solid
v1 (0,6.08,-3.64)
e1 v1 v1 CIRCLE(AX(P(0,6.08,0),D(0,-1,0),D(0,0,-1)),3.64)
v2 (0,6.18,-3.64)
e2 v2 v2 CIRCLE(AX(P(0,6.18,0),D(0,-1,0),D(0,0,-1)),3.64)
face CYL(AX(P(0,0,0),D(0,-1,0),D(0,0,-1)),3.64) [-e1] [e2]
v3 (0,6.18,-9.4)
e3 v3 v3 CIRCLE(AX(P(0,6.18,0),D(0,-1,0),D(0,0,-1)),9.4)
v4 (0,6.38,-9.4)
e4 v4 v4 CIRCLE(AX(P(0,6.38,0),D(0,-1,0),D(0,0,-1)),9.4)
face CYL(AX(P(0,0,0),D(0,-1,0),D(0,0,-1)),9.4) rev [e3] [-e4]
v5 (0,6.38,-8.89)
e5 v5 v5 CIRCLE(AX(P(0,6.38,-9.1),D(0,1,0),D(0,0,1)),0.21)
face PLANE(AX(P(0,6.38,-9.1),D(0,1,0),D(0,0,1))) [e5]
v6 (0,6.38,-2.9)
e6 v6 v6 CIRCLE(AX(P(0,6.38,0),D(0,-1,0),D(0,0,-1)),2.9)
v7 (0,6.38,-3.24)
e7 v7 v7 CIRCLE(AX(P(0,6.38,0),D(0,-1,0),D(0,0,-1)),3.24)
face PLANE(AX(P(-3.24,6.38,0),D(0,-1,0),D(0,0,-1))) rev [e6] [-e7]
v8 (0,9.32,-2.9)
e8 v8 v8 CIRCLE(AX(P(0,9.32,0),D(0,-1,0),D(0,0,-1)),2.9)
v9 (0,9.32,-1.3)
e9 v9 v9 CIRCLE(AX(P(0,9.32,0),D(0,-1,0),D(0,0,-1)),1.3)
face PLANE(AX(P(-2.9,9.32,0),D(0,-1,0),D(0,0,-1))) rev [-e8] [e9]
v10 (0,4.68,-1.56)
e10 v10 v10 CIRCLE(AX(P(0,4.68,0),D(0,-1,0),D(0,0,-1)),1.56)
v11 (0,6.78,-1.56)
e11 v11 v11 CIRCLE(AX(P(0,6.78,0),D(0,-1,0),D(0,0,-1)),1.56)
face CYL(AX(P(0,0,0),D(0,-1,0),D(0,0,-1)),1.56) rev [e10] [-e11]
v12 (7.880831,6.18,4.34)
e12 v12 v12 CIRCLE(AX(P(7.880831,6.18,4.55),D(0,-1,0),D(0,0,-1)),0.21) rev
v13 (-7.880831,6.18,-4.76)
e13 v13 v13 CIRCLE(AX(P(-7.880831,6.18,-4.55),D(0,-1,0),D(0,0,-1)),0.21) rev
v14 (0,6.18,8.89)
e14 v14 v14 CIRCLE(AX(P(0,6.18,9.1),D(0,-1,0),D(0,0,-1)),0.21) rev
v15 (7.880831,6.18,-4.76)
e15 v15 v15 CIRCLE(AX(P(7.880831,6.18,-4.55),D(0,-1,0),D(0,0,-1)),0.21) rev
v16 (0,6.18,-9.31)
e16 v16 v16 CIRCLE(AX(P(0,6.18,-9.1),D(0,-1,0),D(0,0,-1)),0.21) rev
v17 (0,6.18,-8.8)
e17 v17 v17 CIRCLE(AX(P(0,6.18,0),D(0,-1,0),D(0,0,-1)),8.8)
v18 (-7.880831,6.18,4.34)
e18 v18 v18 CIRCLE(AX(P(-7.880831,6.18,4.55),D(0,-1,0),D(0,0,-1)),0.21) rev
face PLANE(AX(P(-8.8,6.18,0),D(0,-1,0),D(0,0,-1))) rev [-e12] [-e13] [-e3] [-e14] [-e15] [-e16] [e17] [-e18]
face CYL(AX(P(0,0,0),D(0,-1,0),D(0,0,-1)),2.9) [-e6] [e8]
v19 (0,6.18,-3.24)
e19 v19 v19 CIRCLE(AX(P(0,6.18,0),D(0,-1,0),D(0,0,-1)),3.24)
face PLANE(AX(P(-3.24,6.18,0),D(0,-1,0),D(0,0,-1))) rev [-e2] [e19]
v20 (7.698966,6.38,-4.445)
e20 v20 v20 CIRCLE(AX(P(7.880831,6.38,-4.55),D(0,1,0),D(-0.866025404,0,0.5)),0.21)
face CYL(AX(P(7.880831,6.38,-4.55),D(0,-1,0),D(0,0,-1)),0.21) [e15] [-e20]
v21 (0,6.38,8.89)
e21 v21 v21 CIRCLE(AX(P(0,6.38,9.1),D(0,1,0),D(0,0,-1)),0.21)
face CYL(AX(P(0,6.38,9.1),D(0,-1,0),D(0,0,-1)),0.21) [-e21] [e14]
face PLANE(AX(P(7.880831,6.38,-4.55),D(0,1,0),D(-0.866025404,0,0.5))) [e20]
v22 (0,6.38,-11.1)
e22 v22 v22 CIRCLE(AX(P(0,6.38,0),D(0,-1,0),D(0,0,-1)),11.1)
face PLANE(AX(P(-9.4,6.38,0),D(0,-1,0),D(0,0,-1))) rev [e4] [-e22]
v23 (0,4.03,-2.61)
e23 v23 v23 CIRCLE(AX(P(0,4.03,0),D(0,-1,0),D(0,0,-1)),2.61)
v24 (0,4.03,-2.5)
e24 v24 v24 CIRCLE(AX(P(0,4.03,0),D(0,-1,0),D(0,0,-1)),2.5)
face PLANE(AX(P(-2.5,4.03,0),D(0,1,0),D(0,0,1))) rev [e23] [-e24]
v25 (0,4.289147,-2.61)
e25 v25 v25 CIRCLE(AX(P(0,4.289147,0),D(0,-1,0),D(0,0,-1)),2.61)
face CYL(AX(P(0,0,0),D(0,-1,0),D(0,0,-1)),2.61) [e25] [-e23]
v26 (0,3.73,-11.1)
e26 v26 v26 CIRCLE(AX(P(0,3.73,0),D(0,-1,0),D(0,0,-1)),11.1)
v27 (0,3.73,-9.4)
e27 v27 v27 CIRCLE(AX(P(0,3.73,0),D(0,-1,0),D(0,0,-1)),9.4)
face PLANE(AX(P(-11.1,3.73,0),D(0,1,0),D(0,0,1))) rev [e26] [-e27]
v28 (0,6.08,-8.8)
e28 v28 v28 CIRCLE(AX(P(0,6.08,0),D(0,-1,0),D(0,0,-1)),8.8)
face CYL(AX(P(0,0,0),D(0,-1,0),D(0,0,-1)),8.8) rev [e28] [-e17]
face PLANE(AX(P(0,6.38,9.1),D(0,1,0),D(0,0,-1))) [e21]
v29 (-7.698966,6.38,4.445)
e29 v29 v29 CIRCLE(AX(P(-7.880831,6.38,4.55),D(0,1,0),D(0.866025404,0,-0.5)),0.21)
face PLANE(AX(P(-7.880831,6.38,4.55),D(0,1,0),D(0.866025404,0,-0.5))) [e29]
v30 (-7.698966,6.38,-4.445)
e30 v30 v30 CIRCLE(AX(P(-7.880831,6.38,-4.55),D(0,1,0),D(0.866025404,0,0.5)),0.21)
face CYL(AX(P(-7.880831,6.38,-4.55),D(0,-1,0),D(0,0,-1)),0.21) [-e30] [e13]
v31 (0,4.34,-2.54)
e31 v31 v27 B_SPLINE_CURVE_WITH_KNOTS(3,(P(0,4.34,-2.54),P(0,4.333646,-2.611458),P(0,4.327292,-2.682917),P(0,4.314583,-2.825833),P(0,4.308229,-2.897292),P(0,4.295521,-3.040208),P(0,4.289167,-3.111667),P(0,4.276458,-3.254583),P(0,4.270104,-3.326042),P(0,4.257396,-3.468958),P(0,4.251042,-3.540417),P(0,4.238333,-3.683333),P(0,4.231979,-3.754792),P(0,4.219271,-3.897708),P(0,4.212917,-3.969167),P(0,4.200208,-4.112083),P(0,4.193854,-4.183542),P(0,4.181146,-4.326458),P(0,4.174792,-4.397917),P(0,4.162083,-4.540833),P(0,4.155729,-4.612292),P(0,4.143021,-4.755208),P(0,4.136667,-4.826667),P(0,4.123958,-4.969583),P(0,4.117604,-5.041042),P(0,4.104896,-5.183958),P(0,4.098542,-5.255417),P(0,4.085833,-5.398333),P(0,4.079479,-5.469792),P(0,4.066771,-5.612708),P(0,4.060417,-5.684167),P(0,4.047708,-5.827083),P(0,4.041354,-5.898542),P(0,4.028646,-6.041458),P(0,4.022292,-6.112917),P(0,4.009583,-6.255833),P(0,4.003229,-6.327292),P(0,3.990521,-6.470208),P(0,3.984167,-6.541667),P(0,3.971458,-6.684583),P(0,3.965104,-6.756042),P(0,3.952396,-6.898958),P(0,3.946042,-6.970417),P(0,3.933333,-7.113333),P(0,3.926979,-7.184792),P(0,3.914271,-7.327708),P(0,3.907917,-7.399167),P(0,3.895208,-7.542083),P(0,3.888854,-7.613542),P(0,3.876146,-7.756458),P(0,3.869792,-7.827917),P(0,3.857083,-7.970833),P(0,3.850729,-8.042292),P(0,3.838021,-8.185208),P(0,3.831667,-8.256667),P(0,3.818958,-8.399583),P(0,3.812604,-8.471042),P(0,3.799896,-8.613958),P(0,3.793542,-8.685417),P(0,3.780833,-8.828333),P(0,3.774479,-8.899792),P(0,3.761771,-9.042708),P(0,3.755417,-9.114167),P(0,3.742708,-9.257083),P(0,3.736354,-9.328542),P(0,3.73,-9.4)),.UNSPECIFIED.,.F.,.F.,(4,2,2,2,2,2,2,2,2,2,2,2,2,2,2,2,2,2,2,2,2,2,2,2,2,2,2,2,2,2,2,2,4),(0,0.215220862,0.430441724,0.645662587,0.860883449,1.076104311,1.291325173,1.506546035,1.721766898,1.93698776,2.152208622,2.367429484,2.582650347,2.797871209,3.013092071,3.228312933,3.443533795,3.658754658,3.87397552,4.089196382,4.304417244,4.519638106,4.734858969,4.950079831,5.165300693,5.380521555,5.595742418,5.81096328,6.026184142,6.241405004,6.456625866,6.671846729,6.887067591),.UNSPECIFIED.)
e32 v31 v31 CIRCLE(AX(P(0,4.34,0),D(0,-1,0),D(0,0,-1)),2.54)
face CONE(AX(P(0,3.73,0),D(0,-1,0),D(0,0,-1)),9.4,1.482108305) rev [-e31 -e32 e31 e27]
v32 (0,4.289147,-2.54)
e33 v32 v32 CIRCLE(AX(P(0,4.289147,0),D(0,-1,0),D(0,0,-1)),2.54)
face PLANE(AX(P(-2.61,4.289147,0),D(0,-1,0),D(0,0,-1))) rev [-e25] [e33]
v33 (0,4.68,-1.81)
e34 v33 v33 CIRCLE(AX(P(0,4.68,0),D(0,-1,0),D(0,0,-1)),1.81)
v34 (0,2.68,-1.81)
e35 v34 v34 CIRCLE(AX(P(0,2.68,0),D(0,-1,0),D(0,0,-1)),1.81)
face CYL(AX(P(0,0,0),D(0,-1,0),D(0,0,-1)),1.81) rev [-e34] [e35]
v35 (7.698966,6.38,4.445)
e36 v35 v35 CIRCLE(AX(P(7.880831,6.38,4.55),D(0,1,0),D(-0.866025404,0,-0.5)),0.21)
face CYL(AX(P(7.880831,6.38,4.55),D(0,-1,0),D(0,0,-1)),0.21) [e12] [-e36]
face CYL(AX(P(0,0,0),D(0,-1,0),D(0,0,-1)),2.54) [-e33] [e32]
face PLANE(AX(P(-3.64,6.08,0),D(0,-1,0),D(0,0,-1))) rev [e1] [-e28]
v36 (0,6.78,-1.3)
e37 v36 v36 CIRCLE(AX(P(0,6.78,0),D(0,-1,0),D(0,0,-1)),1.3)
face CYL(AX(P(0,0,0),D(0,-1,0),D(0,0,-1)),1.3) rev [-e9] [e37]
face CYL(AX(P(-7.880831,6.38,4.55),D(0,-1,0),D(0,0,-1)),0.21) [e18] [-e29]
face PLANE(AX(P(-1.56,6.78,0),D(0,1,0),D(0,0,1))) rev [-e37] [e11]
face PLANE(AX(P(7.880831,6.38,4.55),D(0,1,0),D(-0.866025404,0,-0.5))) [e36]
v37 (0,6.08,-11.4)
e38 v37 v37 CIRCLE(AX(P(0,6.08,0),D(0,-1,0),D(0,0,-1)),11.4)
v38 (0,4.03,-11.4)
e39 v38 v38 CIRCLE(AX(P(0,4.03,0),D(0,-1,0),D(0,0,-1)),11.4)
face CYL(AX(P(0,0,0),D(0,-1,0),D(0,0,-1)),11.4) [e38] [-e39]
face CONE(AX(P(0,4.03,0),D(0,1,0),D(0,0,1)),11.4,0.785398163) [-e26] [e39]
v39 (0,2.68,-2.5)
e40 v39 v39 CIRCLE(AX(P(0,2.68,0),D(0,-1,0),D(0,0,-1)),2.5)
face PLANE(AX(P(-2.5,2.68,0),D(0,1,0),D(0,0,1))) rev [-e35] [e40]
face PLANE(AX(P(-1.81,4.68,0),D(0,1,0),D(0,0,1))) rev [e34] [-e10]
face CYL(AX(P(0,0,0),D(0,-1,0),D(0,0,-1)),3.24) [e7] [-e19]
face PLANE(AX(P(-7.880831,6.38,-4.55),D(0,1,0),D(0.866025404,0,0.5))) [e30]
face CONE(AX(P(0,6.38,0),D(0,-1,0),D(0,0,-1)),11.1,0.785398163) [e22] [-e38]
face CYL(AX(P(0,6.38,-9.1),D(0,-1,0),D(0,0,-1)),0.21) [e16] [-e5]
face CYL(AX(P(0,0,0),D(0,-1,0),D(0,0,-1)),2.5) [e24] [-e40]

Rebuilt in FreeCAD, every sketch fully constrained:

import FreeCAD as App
import Part
import Sketcher
Q = App.Units.Quantity

doc = App.newDocument("Part")
body = doc.addObject("PartDesign::Body", "Body")

# Sketch on XY plane
sketch1 = body.newObject("Sketcher::SketchObject", "Sketch")
sketch1.AttachmentSupport = (doc.getObject("XY_Plane"), [""])
sketch1.MapMode = "FlatFace"
sketch1.addGeometry([
    Part.LineSegment(App.Vector(-1.81, 2.68, 0), App.Vector(-1.81, 4.68, 0)),  # 0
    Part.LineSegment(App.Vector(-1.81, 4.68, 0), App.Vector(-1.56, 4.68, 0)),  # 1
    Part.LineSegment(App.Vector(-1.56, 4.68, 0), App.Vector(-1.56, 6.78, 0)),  # 2
    Part.LineSegment(App.Vector(-1.56, 6.78, 0), App.Vector(-1.3, 6.78, 0)),  # 3
    Part.LineSegment(App.Vector(-1.3, 6.78, 0), App.Vector(-1.3, 9.32, 0)),  # 4
    Part.LineSegment(App.Vector(-1.3, 9.32, 0), App.Vector(-2.9, 9.32, 0)),  # 5
    Part.LineSegment(App.Vector(-2.9, 9.32, 0), App.Vector(-2.9, 6.38, 0)),  # 6
    Part.LineSegment(App.Vector(-2.9, 6.38, 0), App.Vector(-3.24, 6.38, 0)),  # 7
    Part.LineSegment(App.Vector(-3.24, 6.38, 0), App.Vector(-3.24, 6.18, 0)),  # 8
    Part.LineSegment(App.Vector(-3.24, 6.18, 0), App.Vector(-3.64, 6.18, 0)),  # 9
    Part.LineSegment(App.Vector(-3.64, 6.18, 0), App.Vector(-3.64, 6.08, 0)),  # 10
    Part.LineSegment(App.Vector(-3.64, 6.08, 0), App.Vector(-8.8, 6.08, 0)),  # 11
    Part.LineSegment(App.Vector(-8.8, 6.08, 0), App.Vector(-8.8, 6.18, 0)),  # 12
    Part.LineSegment(App.Vector(-8.8, 6.18, 0), App.Vector(-9.4, 6.18, 0)),  # 13
    Part.LineSegment(App.Vector(-9.4, 6.18, 0), App.Vector(-9.4, 6.38, 0)),  # 14
    Part.LineSegment(App.Vector(-9.4, 6.38, 0), App.Vector(-11.1, 6.38, 0)),  # 15
    Part.LineSegment(App.Vector(-11.1, 6.38, 0), App.Vector(-11.4, 6.08, 0)),  # 16
    Part.LineSegment(App.Vector(-11.4, 6.08, 0), App.Vector(-11.4, 4.03, 0)),  # 17
    Part.LineSegment(App.Vector(-11.4, 4.03, 0), App.Vector(-11.1, 3.73, 0)),  # 18
    Part.LineSegment(App.Vector(-11.1, 3.73, 0), App.Vector(-9.4, 3.73, 0)),  # 19
    Part.LineSegment(App.Vector(-9.4, 3.73, 0), App.Vector(-2.54, 4.34, 0)),  # 20
    Part.LineSegment(App.Vector(-2.54, 4.34, 0), App.Vector(-2.54, 4.29, 0)),  # 21
    Part.LineSegment(App.Vector(-2.54, 4.29, 0), App.Vector(-2.61, 4.29, 0)),  # 22
    Part.LineSegment(App.Vector(-2.61, 4.29, 0), App.Vector(-2.61, 4.03, 0)),  # 23
    Part.LineSegment(App.Vector(-2.61, 4.03, 0), App.Vector(-2.5, 4.03, 0)),  # 24
    Part.LineSegment(App.Vector(-2.5, 4.03, 0), App.Vector(-2.5, 2.68, 0)),  # 25
    Part.LineSegment(App.Vector(-2.5, 2.68, 0), App.Vector(-1.81, 2.68, 0)),  # 26
], False)
sketch1.addConstraint([
    Sketcher.Constraint("Coincident", 0, 2, 1, 1),
    Sketcher.Constraint("Coincident", 1, 2, 2, 1),
    Sketcher.Constraint("Coincident", 2, 2, 3, 1),
    Sketcher.Constraint("Coincident", 3, 2, 4, 1),
    Sketcher.Constraint("Coincident", 4, 2, 5, 1),
    Sketcher.Constraint("Coincident", 5, 2, 6, 1),
    Sketcher.Constraint("Coincident", 6, 2, 7, 1),
    Sketcher.Constraint("Coincident", 7, 2, 8, 1),
    Sketcher.Constraint("Coincident", 8, 2, 9, 1),
    Sketcher.Constraint("Coincident", 9, 2, 10, 1),
    Sketcher.Constraint("Coincident", 10, 2, 11, 1),
    Sketcher.Constraint("Coincident", 11, 2, 12, 1),
    Sketcher.Constraint("Coincident", 12, 2, 13, 1),
    Sketcher.Constraint("Coincident", 13, 2, 14, 1),
    Sketcher.Constraint("Coincident", 14, 2, 15, 1),
    Sketcher.Constraint("Coincident", 15, 2, 16, 1),
    Sketcher.Constraint("Coincident", 16, 2, 17, 1),
    Sketcher.Constraint("Coincident", 17, 2, 18, 1),
    Sketcher.Constraint("Coincident", 18, 2, 19, 1),
    Sketcher.Constraint("Coincident", 19, 2, 20, 1),
    Sketcher.Constraint("Coincident", 20, 2, 21, 1),
    Sketcher.Constraint("Coincident", 21, 2, 22, 1),
    Sketcher.Constraint("Coincident", 22, 2, 23, 1),
    Sketcher.Constraint("Coincident", 23, 2, 24, 1),
    Sketcher.Constraint("Coincident", 24, 2, 25, 1),
    Sketcher.Constraint("Coincident", 25, 2, 26, 1),
    Sketcher.Constraint("Coincident", 26, 2, 0, 1),
    Sketcher.Constraint("Vertical", 0),
    Sketcher.Constraint("Horizontal", 1),
    Sketcher.Constraint("Vertical", 2),
    Sketcher.Constraint("Horizontal", 3),
    Sketcher.Constraint("Vertical", 4),
    Sketcher.Constraint("Horizontal", 5),
    Sketcher.Constraint("Vertical", 6),
    Sketcher.Constraint("Horizontal", 7),
    Sketcher.Constraint("Vertical", 8),
    Sketcher.Constraint("Horizontal", 9),
    Sketcher.Constraint("Vertical", 10),
    Sketcher.Constraint("Horizontal", 11),
    Sketcher.Constraint("Vertical", 12),
    Sketcher.Constraint("Horizontal", 13),
    Sketcher.Constraint("Vertical", 14),
    Sketcher.Constraint("Horizontal", 15),
    Sketcher.Constraint("Vertical", 17),
    Sketcher.Constraint("Horizontal", 19),
    Sketcher.Constraint("Vertical", 21),
    Sketcher.Constraint("Horizontal", 22),
    Sketcher.Constraint("Vertical", 23),
    Sketcher.Constraint("Horizontal", 24),
    Sketcher.Constraint("Vertical", 25),
    Sketcher.Constraint("Horizontal", 26),
    Sketcher.Constraint("Perpendicular", 16, 18),
    Sketcher.Constraint("Horizontal", 9, 2, 12, 2),
    Sketcher.Constraint("Horizontal", 7, 2, 14, 2),
    Sketcher.Constraint("Horizontal", 11, 2, 16, 2),
    Sketcher.Constraint("Horizontal", 17, 2, 23, 2),
    Sketcher.Constraint("Vertical", 15, 2, 18, 2),
    Sketcher.Constraint("Vertical", 14, 2, 19, 2),
    Sketcher.Constraint("Equal", 16, 18),
    Sketcher.Constraint("DistanceY", 0, 1, 0, 2, Q("2 mm")),
    Sketcher.Constraint("DistanceX", 5, 2, 5, 1, Q("1.6 mm")),
    Sketcher.Constraint("DistanceX", 9, 2, 9, 1, Q("0.4 mm")),
    Sketcher.Constraint("DistanceX", 13, 2, 13, 1, Q("0.6 mm")),
    Sketcher.Constraint("DistanceX", 15, 2, 15, 1, Q("1.7 mm")),
    Sketcher.Constraint("DistanceY", 2, 1, 2, 2, Q("2.1 mm")),
    Sketcher.Constraint("DistanceY", 8, 2, 8, 1, Q("0.2 mm")),
    Sketcher.Constraint("DistanceY", 10, 2, 10, 1, Q("0.1 mm")),
    Sketcher.Constraint("DistanceX", 1, 1, 1, 2, Q("0.25 mm")),
    Sketcher.Constraint("DistanceX", 3, 1, 3, 2, Q("0.26 mm")),
    Sketcher.Constraint("DistanceX", 7, 2, 7, 1, Q("0.34 mm")),
    Sketcher.Constraint("DistanceX", 11, 2, 11, 1, Q("5.16 mm")),
    Sketcher.Constraint("DistanceX", 22, 2, 22, 1, Q("0.07 mm")),
    Sketcher.Constraint("DistanceX", 24, 1, 24, 2, Q("0.11 mm")),
    Sketcher.Constraint("DistanceX", 26, 1, 26, 2, Q("0.69 mm")),
    Sketcher.Constraint("DistanceY", 4, 1, 4, 2, Q("2.54 mm")),
    Sketcher.Constraint("DistanceY", 6, 2, 6, 1, Q("2.94 mm")),
    Sketcher.Constraint("DistanceY", 17, 2, 17, 1, Q("2.05 mm")),
    Sketcher.Constraint("DistanceX", 3, 2, -1, 1, Q("1.3 mm")),
    Sketcher.Constraint("DistanceY", -1, 1, 0, 2, Q("4.68 mm")),
    Sketcher.Constraint("DistanceY", -1, 1, 20, 2, Q("4.34 mm")),
    Sketcher.Constraint("DistanceY", 21, 2, 21, 1, Q("0.050853 mm")),
])
revolution = body.newObject("PartDesign::Revolution", "Revolution")
revolution.Profile = sketch1
revolution.ReferenceAxis = (sketch1, ["V_Axis"])
revolution.Angle = 360

# Sketch on XZ plane
sketch2 = body.newObject("Sketcher::SketchObject", "Sketch001")
sketch2.AttachmentSupport = (doc.getObject("XZ_Plane"), [""])
sketch2.MapMode = "FlatFace"
sketch2.AttachmentOffset = App.Placement(App.Vector(0, 0, -6.18), App.Rotation())
sketch2.addGeometry(Part.Circle(App.Vector(0, -9.1, 0), App.Vector(0, 0, 1), 0.21), False)
sketch2.addConstraint([
    Sketcher.Constraint("PointOnObject", 0, 3, -2),
    Sketcher.Constraint("Diameter", 0, Q("0.42 mm")),
    Sketcher.Constraint("DistanceY", 0, 3, -1, 1, Q("9.1 mm")),
])
pad1 = body.newObject("PartDesign::Pad", "Pad")
pad1.Profile = sketch2
pad1.Length = 0.2
pad1.Reversed = True
doc.recompute()

polarpattern = body.newObject("PartDesign::PolarPattern", "PolarPattern")
polarpattern.Originals = [pad1]
polarpattern.Axis = (doc.getObject("Y_Axis"), [""])
polarpattern.Angle = 360
polarpattern.Occurrences = 6
body.Tip = polarpattern

doc.recompute()
